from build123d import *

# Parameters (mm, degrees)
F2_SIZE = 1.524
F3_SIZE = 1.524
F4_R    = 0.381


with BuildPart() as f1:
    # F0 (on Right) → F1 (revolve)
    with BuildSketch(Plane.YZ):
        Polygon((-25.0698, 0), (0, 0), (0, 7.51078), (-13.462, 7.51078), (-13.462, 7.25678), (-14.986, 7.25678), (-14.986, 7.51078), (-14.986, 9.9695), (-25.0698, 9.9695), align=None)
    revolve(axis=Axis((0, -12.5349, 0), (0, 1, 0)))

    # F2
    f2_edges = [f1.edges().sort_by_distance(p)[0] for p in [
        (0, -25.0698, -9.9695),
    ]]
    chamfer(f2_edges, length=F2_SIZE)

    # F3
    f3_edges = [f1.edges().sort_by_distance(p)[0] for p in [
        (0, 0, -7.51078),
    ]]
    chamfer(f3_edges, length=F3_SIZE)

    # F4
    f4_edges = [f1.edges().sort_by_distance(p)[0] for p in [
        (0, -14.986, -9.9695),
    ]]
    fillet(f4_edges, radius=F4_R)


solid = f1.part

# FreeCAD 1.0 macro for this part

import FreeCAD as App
import Part
import Sketcher
Q = App.Units.Quantity


def edges_at(feature, points):
    """Names of the edges that pass closest to the given points."""
    edges = feature.Shape.Edges
    near = lambda p: min(range(len(edges)), key=lambda i: edges[i].distToShape(Part.Vertex(*p))[0])
    return sorted({f"Edge{near(p) + 1}" for p in points})

doc = App.newDocument("Part")
body = doc.addObject("PartDesign::Body", "Body")

sketch1 = body.newObject("Sketcher::SketchObject", "Sketch")
sketch1.AttachmentSupport = (doc.getObject("YZ_Plane"), [""])
sketch1.MapMode = "FlatFace"
sketch1.addGeometry([
    Part.LineSegment(App.Vector(-25.07, 0, 0), App.Vector(0, 0, 0)),
    Part.LineSegment(App.Vector(0, 0, 0), App.Vector(0, 7.51, 0)),
    Part.LineSegment(App.Vector(0, 7.51, 0), App.Vector(-13.46, 7.51, 0)),
    Part.LineSegment(App.Vector(-13.46, 7.51, 0), App.Vector(-13.46, 7.26, 0)),
    Part.LineSegment(App.Vector(-13.46, 7.26, 0), App.Vector(-14.99, 7.26, 0)),
    Part.LineSegment(App.Vector(-14.99, 7.26, 0), App.Vector(-14.99, 9.97, 0)),
    Part.LineSegment(App.Vector(-14.99, 9.97, 0), App.Vector(-25.07, 9.97, 0)),
    Part.LineSegment(App.Vector(-25.07, 9.97, 0), App.Vector(-25.07, 0, 0)),
], False)
sketch1.addConstraint([
    Sketcher.Constraint("Coincident", 0, 2, 1, 1),
    Sketcher.Constraint("Coincident", 1, 2, 2, 1),
    Sketcher.Constraint("Coincident", 2, 2, 3, 1),
    Sketcher.Constraint("Coincident", 3, 2, 4, 1),
    Sketcher.Constraint("Coincident", 4, 2, 5, 1),
    Sketcher.Constraint("Coincident", 5, 2, 6, 1),
    Sketcher.Constraint("Coincident", 6, 2, 7, 1),
    Sketcher.Constraint("Coincident", 7, 2, 0, 1),
    Sketcher.Constraint("Horizontal", 0),
    Sketcher.Constraint("Vertical", 1),
    Sketcher.Constraint("Horizontal", 2),
    Sketcher.Constraint("Vertical", 3),
    Sketcher.Constraint("Horizontal", 4),
    Sketcher.Constraint("Vertical", 5),
    Sketcher.Constraint("Horizontal", 6),
    Sketcher.Constraint("Vertical", 7),
    Sketcher.Constraint("Coincident", 0, 2, -1, 1),
    Sketcher.Constraint("DistanceX", 2, 2, 2, 1, Q("0.53 in")),
    Sketcher.Constraint("DistanceX", 4, 2, 4, 1, Q("0.06 in")),
    Sketcher.Constraint("DistanceY", 3, 2, 3, 1, Q("0.01 in")),
    Sketcher.Constraint("DistanceX", 0, 1, 0, 2, Q("0.987 in")),
    Sketcher.Constraint("DistanceY", 1, 1, 1, 2, Q("0.2957 in")),
    Sketcher.Constraint("DistanceY", 5, 1, 5, 2, Q("0.1068 in")),
])
revolution = body.newObject("PartDesign::Revolution", "Revolution")
revolution.Profile = sketch1
revolution.ReferenceAxis = (sketch1, ["H_Axis"])
revolution.Angle = 360
doc.recompute()

chamfer = body.newObject("PartDesign::Chamfer", "Chamfer")
chamfer.Base = (revolution, edges_at(revolution, [(0, -25.07, -9.97)]))
chamfer.Size = Q("0.06 in")
doc.recompute()

chamfer2 = body.newObject("PartDesign::Chamfer", "Chamfer001")
chamfer2.Base = (chamfer, edges_at(chamfer, [(0, 0, -7.511)]))
chamfer2.Size = Q("0.06 in")
doc.recompute()

fillet = body.newObject("PartDesign::Fillet", "Fillet")
fillet.Base = (chamfer2, edges_at(chamfer2, [(0, -14.986, -9.97)]))
fillet.Radius = Q("0.015 in")

doc.recompute()
